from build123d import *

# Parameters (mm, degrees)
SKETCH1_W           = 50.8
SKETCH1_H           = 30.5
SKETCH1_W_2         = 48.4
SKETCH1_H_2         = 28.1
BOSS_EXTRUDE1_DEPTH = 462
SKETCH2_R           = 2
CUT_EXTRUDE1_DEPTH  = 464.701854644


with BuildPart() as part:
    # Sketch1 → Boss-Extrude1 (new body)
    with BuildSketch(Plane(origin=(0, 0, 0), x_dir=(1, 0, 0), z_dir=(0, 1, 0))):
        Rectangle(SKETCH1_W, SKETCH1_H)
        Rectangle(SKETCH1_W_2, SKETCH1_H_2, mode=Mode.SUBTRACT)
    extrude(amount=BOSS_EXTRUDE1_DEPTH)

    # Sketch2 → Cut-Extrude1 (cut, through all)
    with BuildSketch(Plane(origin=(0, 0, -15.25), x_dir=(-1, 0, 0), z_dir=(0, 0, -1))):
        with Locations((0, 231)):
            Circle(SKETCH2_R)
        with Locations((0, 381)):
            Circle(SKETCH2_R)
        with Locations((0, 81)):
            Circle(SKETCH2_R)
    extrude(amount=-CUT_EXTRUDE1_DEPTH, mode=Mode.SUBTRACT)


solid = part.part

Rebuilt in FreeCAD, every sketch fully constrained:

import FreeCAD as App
import Part
import Sketcher

V = App.Vector
Q = App.Units.Quantity


def add_polygon(sketch, points):
    """Adds a closed chain of lines whose ends are joined by coincident constraints."""
    first, n = sketch.GeometryCount, len(points)
    for a, b in zip(points, points[1:] + points[:1]):
        sketch.addGeometry(Part.LineSegment(App.Vector(*a, 0), App.Vector(*b, 0)), False)
    for i in range(n):
        sketch.addConstraint(Sketcher.Constraint("Coincident", first + i, 2, first + (i + 1) % n, 1))

doc = App.newDocument("Part")
body = doc.addObject("PartDesign::Body", "Body")

# Sketch on XZ plane
sketch1 = body.newObject("Sketcher::SketchObject", "Sketch")
sketch1.AttachmentSupport = (doc.getObject("XZ_Plane"), [""])
sketch1.MapMode = "FlatFace"
add_polygon(sketch1, [(-25, -15), (-25, 15), (25, 15), (25, -15)])  # lines 0-3
add_polygon(sketch1, [(24, 14), (-24, 14), (-24, -14), (24, -14)])  # lines 4-7
sketch1.addConstraint([
    Sketcher.Constraint("Vertical", 0),
    Sketcher.Constraint("Horizontal", 1),
    Sketcher.Constraint("Vertical", 2),
    Sketcher.Constraint("Horizontal", 3),
    Sketcher.Constraint("Horizontal", 4),
    Sketcher.Constraint("Vertical", 5),
    Sketcher.Constraint("Horizontal", 6),
    Sketcher.Constraint("Vertical", 7),
    Sketcher.Constraint("Symmetric", 0, 2, 2, 2, -1, 1),
    Sketcher.Constraint("Symmetric", 4, 2, 6, 2, -1, 1),
    Sketcher.Constraint("DistanceX", 1, 1, 1, 2, Q("50.8 mm")),
    Sketcher.Constraint("DistanceX", 4, 2, 4, 1, Q("48.4 mm")),
    Sketcher.Constraint("DistanceY", 0, 1, 0, 2, Q("30.5 mm")),
    Sketcher.Constraint("DistanceY", 5, 2, 5, 1, Q("28.1 mm")),
])
pad1 = body.newObject("PartDesign::Pad", "Pad")
pad1.Profile = sketch1
pad1.Length = 462
pad1.Reversed = True

# Sketch on XY plane
sketch2 = body.newObject("Sketcher::SketchObject", "Sketch001")
sketch2.AttachmentSupport = (doc.getObject("XY_Plane"), [""])
sketch2.MapMode = "FlatFace"
sketch2.AttachmentOffset = App.Placement(V(0, 0, -15.25), App.Rotation())
sketch2.addGeometry([
    Part.Circle(V(0, 231, 0), V(0, 0, 1), 2),
    Part.Circle(V(0, 381, 0), V(0, 0, 1), 2),
    Part.Circle(V(0, 81, 0), V(0, 0, 1), 2),
], False)
sketch2.addConstraint([
    Sketcher.Constraint("Equal", 0, 1),
    Sketcher.Constraint("Equal", 1, 2),
    Sketcher.Constraint("PointOnObject", 0, 3, -2),
    Sketcher.Constraint("PointOnObject", 1, 3, -2),
    Sketcher.Constraint("PointOnObject", 2, 3, -2),
    Sketcher.Constraint("Diameter", 0, Q("4 mm")),
    Sketcher.Constraint("DistanceY", -1, 1, 0, 3, Q("231 mm")),
    Sketcher.Constraint("DistanceY", -1, 1, 1, 3, Q("381 mm")),
    Sketcher.Constraint("DistanceY", -1, 1, 2, 3, Q("81 mm")),
])
pocket1 = body.newObject("PartDesign::Pocket", "Pocket")
pocket1.Profile = sketch2
pocket1.Type = "ThroughAll"
pocket1.Reversed = True

doc.recompute()
